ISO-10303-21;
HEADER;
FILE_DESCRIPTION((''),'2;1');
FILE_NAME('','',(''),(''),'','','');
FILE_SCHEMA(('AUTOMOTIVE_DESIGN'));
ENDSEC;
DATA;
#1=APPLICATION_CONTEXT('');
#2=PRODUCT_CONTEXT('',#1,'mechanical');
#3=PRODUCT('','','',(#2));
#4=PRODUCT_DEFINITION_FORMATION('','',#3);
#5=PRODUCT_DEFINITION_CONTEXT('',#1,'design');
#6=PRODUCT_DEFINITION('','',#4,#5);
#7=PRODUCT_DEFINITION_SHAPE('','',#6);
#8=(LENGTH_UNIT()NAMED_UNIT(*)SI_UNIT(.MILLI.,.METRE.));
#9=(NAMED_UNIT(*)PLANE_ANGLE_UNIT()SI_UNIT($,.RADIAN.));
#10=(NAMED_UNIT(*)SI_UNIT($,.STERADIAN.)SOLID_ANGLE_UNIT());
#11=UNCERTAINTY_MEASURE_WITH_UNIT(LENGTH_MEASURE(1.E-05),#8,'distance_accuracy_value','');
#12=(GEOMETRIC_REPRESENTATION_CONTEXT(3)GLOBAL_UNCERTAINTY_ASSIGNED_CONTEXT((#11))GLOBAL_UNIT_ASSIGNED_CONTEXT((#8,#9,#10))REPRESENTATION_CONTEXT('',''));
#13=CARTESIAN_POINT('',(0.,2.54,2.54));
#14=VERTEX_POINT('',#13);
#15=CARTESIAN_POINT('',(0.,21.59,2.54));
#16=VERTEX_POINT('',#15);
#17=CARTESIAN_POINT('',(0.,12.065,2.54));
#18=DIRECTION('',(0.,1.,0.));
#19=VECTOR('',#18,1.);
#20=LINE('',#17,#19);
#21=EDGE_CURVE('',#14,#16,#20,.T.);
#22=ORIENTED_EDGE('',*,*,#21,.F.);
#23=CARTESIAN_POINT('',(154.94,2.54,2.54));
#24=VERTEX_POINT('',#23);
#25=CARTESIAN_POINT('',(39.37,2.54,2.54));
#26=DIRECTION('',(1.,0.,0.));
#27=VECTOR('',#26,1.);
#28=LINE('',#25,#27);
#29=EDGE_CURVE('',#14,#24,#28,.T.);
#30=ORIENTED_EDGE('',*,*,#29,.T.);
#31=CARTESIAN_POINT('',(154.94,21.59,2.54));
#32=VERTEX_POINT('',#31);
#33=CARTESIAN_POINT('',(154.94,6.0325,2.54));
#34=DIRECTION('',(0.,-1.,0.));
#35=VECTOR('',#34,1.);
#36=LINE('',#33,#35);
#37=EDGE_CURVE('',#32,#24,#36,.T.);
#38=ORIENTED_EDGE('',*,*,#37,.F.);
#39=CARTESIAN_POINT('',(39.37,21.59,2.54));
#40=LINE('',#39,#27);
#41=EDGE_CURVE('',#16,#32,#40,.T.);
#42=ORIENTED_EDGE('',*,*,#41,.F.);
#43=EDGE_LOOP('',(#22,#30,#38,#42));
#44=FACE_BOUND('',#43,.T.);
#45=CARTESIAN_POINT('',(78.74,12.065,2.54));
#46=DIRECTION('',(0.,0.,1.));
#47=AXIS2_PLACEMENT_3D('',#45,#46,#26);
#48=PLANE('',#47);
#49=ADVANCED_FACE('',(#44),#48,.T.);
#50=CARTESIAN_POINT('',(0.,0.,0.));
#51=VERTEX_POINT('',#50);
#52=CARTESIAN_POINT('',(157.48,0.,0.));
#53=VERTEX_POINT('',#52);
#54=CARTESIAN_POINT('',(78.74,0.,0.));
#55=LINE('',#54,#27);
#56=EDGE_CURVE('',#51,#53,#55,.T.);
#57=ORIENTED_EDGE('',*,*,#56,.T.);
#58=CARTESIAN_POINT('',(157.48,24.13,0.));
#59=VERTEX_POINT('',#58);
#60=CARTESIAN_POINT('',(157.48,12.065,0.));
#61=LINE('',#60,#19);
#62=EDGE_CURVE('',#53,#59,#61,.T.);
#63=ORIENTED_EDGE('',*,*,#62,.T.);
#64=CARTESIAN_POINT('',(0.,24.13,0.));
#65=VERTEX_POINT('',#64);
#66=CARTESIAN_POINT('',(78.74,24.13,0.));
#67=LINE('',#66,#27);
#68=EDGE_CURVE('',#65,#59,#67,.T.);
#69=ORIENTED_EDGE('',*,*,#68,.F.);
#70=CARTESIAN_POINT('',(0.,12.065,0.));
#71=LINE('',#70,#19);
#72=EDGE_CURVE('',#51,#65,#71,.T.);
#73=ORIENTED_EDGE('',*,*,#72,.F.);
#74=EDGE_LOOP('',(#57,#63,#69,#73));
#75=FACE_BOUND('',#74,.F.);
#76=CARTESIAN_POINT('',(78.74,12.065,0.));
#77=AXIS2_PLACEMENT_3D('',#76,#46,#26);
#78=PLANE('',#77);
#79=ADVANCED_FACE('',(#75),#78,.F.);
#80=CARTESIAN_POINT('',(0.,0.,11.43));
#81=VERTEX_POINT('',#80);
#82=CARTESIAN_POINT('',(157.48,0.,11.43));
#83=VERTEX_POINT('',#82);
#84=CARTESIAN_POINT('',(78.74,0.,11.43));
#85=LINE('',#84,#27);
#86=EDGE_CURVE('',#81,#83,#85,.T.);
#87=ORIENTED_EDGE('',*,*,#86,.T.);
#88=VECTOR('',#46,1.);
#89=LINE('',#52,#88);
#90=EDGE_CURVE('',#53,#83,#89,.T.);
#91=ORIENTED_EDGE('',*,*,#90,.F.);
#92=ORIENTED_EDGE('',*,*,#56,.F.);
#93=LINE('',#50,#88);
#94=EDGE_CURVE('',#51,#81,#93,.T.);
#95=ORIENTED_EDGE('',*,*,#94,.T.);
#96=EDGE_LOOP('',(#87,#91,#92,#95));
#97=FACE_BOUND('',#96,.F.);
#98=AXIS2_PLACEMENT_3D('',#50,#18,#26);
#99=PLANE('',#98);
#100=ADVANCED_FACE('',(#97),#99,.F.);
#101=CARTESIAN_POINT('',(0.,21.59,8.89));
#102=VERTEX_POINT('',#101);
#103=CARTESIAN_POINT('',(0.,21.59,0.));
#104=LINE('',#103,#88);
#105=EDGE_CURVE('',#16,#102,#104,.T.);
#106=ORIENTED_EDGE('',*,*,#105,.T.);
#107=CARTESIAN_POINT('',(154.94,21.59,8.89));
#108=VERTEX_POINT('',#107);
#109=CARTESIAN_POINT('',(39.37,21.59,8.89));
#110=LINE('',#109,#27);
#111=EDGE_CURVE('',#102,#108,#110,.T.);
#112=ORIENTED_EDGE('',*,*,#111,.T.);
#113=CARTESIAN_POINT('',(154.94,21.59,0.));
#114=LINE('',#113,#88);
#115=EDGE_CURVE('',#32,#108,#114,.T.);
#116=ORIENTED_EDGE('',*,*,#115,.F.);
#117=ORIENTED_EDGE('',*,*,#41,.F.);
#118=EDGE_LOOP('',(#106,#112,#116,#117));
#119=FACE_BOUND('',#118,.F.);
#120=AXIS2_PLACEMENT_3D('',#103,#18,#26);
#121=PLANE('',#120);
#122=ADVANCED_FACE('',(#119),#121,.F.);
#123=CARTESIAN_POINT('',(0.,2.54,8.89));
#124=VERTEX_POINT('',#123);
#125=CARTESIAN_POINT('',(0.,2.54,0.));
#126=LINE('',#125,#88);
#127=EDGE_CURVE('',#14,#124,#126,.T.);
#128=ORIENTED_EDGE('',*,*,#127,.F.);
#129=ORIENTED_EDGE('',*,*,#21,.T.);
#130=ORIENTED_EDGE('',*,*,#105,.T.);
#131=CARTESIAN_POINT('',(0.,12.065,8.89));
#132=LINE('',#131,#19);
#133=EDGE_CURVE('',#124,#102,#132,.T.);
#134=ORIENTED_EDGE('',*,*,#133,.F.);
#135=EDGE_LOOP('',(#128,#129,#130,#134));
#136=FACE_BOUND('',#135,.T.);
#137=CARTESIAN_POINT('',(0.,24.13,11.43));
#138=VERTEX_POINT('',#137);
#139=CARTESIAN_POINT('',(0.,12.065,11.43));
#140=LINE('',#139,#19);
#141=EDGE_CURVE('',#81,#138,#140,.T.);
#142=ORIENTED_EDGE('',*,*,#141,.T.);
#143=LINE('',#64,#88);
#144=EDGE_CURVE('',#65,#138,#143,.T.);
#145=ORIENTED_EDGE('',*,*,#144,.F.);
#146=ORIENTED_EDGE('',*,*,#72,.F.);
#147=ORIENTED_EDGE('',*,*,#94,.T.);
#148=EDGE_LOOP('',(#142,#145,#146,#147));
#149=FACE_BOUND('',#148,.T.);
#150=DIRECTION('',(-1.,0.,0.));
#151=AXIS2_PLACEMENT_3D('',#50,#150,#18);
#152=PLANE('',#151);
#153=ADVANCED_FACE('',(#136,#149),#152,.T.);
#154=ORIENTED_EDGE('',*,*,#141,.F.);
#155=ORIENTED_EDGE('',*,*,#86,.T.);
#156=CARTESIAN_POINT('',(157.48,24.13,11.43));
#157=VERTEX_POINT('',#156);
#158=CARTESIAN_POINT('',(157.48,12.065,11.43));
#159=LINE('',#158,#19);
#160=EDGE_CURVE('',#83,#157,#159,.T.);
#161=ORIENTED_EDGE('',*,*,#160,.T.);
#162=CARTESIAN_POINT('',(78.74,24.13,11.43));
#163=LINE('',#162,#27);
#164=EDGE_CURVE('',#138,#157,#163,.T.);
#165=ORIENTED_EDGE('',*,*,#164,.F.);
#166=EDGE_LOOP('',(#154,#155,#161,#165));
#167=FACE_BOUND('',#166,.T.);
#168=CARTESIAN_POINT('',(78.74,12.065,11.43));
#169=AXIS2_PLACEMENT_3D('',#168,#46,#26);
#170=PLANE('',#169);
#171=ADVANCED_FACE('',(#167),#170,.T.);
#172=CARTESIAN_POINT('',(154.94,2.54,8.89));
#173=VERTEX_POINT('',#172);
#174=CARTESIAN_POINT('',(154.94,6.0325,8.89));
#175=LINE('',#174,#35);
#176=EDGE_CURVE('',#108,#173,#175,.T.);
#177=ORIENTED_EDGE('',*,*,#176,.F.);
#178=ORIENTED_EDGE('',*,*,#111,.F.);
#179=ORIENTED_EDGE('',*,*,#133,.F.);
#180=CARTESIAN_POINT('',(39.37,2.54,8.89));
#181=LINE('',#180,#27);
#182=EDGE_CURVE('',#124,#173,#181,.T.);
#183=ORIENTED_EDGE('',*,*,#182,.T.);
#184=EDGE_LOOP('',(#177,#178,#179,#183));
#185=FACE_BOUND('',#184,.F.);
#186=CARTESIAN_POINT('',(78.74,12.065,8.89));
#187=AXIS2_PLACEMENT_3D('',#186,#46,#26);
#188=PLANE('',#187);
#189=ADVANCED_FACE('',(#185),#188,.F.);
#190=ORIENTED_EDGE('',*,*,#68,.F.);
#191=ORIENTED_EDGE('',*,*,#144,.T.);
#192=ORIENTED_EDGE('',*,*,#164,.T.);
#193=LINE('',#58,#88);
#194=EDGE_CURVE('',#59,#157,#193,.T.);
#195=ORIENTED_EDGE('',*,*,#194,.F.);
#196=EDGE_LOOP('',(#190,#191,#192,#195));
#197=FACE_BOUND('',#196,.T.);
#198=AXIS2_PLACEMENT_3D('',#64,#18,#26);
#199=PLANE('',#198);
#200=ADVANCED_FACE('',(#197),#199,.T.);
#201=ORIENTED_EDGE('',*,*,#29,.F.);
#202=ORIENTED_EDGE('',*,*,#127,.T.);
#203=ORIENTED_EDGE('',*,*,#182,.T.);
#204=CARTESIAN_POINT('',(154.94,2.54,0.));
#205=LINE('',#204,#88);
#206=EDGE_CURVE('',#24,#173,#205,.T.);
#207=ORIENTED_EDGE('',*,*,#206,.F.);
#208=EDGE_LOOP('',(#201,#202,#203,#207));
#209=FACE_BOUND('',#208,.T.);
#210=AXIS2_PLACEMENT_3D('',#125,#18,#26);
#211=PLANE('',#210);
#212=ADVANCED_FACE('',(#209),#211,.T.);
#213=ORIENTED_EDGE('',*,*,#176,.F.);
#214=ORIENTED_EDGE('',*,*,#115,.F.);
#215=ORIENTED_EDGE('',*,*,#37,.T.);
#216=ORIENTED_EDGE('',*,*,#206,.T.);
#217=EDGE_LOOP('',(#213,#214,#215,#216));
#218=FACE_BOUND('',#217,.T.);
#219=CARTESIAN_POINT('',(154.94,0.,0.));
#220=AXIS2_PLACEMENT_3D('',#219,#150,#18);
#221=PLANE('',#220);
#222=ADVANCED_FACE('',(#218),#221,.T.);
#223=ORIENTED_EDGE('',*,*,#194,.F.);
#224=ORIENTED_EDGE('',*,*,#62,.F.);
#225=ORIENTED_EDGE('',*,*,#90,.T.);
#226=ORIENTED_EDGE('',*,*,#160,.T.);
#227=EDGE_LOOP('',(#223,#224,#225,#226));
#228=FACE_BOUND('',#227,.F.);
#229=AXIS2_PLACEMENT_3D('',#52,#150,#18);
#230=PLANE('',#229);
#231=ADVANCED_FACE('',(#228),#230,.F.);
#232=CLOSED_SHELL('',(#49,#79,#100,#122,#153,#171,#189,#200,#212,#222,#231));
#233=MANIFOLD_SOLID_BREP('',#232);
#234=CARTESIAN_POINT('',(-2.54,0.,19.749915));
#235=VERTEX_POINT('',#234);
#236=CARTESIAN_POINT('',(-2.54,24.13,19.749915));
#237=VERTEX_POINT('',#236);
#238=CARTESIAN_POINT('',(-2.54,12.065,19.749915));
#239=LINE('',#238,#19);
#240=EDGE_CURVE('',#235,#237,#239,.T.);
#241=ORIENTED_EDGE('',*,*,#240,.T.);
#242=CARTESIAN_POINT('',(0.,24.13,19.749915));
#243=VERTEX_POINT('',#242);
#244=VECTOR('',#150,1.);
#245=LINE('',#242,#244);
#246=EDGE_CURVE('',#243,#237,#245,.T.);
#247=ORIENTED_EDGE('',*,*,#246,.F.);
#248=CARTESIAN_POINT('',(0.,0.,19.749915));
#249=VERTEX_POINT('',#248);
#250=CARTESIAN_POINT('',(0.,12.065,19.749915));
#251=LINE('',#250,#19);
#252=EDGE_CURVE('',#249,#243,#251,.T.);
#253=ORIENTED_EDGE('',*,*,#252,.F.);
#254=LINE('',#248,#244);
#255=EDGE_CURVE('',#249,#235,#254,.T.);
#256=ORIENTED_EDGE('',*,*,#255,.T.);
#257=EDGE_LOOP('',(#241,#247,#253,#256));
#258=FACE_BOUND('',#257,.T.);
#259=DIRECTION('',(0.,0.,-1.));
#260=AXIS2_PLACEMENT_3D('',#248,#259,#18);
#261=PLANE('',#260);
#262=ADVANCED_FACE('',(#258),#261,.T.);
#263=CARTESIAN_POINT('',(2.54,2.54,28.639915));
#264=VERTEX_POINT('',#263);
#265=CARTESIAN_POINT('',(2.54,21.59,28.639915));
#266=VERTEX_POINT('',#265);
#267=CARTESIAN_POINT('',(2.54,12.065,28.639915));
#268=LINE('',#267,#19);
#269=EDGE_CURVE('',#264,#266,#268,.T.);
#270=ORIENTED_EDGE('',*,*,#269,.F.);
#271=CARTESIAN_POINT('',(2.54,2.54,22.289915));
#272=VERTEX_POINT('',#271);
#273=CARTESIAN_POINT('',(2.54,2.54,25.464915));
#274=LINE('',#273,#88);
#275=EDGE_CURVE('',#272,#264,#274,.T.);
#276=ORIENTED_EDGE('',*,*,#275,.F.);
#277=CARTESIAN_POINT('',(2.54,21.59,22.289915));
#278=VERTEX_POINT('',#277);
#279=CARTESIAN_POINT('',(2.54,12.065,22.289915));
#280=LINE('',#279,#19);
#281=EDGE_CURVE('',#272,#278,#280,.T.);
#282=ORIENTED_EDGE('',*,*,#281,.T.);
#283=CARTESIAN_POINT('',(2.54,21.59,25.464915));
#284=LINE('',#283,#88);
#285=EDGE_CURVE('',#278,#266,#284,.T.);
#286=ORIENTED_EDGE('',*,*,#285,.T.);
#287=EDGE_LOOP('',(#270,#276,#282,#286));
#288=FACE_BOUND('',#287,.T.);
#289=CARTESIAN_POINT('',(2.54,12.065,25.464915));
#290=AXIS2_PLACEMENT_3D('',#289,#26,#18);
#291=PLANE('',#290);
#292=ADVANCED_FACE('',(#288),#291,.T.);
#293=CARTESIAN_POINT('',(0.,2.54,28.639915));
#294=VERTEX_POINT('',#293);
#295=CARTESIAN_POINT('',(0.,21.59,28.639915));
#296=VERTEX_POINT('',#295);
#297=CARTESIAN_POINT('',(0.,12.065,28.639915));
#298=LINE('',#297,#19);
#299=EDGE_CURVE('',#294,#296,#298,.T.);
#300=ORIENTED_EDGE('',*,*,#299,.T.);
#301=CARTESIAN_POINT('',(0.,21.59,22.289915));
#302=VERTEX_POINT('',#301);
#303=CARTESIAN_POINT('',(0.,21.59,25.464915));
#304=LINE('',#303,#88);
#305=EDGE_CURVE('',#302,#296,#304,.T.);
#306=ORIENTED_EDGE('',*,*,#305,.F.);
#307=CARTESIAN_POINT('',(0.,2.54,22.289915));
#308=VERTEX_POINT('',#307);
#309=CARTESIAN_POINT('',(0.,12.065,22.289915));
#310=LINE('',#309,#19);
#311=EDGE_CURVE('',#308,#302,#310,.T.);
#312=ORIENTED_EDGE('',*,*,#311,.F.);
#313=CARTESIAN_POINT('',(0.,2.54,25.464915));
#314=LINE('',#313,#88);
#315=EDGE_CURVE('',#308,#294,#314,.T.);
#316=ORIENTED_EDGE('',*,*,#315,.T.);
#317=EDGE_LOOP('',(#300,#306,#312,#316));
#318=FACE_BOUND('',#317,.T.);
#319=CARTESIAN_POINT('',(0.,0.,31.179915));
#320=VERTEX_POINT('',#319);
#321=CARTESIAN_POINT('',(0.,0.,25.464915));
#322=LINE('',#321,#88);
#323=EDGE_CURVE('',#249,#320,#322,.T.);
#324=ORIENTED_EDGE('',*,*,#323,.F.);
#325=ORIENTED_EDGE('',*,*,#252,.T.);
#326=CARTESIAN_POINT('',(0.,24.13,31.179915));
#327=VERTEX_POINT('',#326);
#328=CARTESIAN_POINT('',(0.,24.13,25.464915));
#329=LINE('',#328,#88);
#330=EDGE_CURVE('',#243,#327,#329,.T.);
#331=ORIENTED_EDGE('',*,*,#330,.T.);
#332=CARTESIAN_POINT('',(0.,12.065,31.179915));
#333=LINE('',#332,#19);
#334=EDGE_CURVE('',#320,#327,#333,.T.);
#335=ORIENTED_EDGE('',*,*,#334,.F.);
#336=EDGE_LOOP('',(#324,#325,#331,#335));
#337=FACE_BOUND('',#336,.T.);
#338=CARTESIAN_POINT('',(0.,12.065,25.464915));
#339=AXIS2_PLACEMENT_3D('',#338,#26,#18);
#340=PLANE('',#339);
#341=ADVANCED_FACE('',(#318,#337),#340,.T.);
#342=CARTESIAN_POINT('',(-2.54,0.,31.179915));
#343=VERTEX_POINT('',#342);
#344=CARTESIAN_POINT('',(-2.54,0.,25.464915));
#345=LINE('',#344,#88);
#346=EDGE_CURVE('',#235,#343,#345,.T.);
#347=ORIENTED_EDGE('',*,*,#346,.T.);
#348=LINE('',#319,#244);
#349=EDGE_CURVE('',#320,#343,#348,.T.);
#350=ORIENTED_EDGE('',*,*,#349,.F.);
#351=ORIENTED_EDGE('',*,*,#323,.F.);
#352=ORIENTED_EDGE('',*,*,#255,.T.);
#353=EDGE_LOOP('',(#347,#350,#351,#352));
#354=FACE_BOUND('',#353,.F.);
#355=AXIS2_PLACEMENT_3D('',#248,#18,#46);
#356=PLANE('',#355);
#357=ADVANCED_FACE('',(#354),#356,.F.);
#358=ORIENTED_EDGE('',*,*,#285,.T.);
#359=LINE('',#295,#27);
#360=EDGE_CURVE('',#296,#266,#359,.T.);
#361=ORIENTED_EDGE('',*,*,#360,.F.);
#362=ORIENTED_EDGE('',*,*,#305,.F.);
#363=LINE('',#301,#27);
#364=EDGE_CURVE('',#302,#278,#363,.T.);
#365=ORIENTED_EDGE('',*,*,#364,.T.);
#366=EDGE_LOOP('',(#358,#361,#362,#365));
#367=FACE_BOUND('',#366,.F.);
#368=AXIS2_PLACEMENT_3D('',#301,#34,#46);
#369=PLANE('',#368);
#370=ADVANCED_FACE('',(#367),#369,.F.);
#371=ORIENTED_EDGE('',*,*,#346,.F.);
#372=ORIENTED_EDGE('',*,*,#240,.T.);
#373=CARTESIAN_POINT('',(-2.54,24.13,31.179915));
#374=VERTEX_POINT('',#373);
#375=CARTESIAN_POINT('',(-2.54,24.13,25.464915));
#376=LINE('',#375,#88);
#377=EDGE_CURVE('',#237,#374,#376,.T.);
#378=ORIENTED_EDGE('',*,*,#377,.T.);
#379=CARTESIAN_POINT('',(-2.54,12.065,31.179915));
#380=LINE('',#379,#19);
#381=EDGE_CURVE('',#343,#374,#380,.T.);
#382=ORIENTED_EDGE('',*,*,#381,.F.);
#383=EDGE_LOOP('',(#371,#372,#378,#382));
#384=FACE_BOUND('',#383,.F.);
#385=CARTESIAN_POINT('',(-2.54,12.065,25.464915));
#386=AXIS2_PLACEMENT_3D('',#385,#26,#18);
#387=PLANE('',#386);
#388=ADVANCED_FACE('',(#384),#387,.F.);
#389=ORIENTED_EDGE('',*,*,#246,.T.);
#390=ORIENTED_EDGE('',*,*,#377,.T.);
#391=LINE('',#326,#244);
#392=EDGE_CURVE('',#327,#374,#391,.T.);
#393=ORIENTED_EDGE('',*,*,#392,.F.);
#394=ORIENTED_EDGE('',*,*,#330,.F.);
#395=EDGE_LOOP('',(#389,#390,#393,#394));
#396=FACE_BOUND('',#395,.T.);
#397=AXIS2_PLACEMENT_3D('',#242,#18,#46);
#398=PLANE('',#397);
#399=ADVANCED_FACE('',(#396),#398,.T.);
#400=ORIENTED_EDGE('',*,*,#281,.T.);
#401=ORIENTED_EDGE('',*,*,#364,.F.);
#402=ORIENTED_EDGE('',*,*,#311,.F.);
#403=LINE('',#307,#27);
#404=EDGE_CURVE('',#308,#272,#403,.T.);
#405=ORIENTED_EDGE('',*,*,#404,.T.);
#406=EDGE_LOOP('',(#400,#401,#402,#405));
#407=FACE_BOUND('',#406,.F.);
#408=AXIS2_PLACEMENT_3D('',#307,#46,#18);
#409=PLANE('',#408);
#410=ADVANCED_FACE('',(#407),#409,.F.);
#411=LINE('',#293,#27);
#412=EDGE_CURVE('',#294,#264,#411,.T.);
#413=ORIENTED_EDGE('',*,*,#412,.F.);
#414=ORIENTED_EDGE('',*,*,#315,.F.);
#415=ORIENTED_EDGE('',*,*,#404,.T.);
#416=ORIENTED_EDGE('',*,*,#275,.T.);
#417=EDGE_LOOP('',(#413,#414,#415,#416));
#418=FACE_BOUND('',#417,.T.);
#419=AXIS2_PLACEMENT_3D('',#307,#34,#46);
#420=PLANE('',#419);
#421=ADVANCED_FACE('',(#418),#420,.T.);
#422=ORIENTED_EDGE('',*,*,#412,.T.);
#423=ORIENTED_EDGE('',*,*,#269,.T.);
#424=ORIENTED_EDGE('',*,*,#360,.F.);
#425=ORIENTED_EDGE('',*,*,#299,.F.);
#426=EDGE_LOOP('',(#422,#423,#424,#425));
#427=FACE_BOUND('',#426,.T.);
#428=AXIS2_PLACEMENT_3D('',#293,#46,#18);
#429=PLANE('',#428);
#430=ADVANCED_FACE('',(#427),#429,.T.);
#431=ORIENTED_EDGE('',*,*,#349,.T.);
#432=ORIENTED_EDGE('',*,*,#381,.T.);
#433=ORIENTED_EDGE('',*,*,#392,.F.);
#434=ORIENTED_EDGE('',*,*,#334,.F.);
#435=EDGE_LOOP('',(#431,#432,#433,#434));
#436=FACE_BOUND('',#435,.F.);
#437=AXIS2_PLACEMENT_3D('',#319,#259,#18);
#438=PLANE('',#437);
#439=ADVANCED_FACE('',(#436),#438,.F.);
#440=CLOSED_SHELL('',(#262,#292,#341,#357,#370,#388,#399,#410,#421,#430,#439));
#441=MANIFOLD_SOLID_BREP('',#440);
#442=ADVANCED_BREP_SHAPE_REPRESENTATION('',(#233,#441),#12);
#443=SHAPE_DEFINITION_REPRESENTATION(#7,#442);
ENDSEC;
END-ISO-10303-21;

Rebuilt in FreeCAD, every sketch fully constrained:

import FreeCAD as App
import Part
import Sketcher

V = App.Vector
Q = App.Units.Quantity


def faces_at(feature, points):
    """Names of the faces that lie closest to the given points."""
    faces = feature.Shape.Faces
    near = lambda p: min(range(len(faces)), key=lambda i: faces[i].distToShape(Part.Vertex(*p))[0])
    return sorted({f"Face{near(p) + 1}" for p in points})


def add_polygon(sketch, points):
    """Adds a closed chain of lines whose ends are joined by coincident constraints."""
    first, n = sketch.GeometryCount, len(points)
    for a, b in zip(points, points[1:] + points[:1]):
        sketch.addGeometry(Part.LineSegment(App.Vector(*a, 0), App.Vector(*b, 0)), False)
    for i in range(n):
        sketch.addConstraint(Sketcher.Constraint("Coincident", first + i, 2, first + (i + 1) % n, 1))

doc = App.newDocument("Part")
params = doc.addObject("Spreadsheet::Sheet", "Params")
for row, (alias, value) in enumerate([
    ("sketch1_width", "6.2 in"),
    ("sketch1_height", "0.95 in"),
    ("pad1_length", "0.45 in"),
    ("thickness_wall", "0.1 in"),
    ("sketch2_width", "0.95 in"),
    ("sketch2_height", "0.45 in"),
    ("pad2_length", "0.1 in"),
    ("sketch3_width", "0.75 in"),
    ("sketch3_height", "0.25 in"),
    ("pad3_length", "0.1 in"),
], start=1):
    params.set(f"A{row}", alias)
    params.set(f"B{row}", "=" + value)
    params.setAlias(f"B{row}", alias)

body = doc.addObject("PartDesign::Body", "Body")

sketch1 = body.newObject("Sketcher::SketchObject", "Sketch")
sketch1.AttachmentSupport = (doc.getObject("XY_Plane"), [""])
sketch1.MapMode = "FlatFace"
add_polygon(sketch1, [(0, 24), (0, 0), (157, 0), (157, 24)])
sketch1.addConstraint([
    Sketcher.Constraint("Vertical", 0),
    Sketcher.Constraint("Horizontal", 1),
    Sketcher.Constraint("Vertical", 2),
    Sketcher.Constraint("Horizontal", 3),
    Sketcher.Constraint("Coincident", 0, 2, -1, 1),
    Sketcher.Constraint("DistanceX", 1, 1, 1, 2, Q("6.2 in")),
    Sketcher.Constraint("DistanceY", 0, 2, 0, 1, Q("0.95 in")),
])
sketch1.setExpression("Constraints[9]", "Params.sketch1_width")
sketch1.setExpression("Constraints[10]", "Params.sketch1_height")
pad1 = body.newObject("PartDesign::Pad", "Pad")
pad1.Profile = sketch1
pad1.setExpression("Length", "Params.pad1_length")
doc.recompute()

thickness = body.newObject("PartDesign::Thickness", "Thickness")
thickness.Base = (pad1, faces_at(pad1, [(0, 12.065, 5.715)]))
thickness.setExpression("Value", "Params.thickness_wall")
thickness.Reversed = True
thickness.Join = "Arc"
body2 = doc.addObject("PartDesign::Body", "Body001")

sketch2 = body2.newObject("Sketcher::SketchObject", "Sketch001")
sketch2.AttachmentSupport = (doc.getObject("YZ_Plane001"), [""])
sketch2.MapMode = "FlatFace"
add_polygon(sketch2, [(0, 31), (0, 20), (24, 20), (24, 31)])
sketch2.addConstraint([
    Sketcher.Constraint("Vertical", 0),
    Sketcher.Constraint("Horizontal", 1),
    Sketcher.Constraint("Vertical", 2),
    Sketcher.Constraint("Horizontal", 3),
    Sketcher.Constraint("PointOnObject", 0, 2, -2),
    Sketcher.Constraint("DistanceX", 1, 1, 1, 2, Q("0.95 in")),
    Sketcher.Constraint("DistanceY", 0, 2, 0, 1, Q("0.45 in")),
    Sketcher.Constraint("DistanceY", -1, 1, 0, 2, Q("19.749915 mm")),
])
sketch2.setExpression("Constraints[9]", "Params.sketch2_width")
sketch2.setExpression("Constraints[10]", "Params.sketch2_height")
pad2 = body2.newObject("PartDesign::Pad", "Pad001")
pad2.Profile = sketch2
pad2.setExpression("Length", "Params.pad2_length")
pad2.Reversed = True

sketch3 = body2.newObject("Sketcher::SketchObject", "Sketch002")
sketch3.AttachmentSupport = (doc.getObject("YZ_Plane001"), [""])
sketch3.MapMode = "FlatFace"
add_polygon(sketch3, [(3, 29), (3, 22), (22, 22), (22, 29)])
sketch3.addConstraint([
    Sketcher.Constraint("Vertical", 0),
    Sketcher.Constraint("Horizontal", 1),
    Sketcher.Constraint("Vertical", 2),
    Sketcher.Constraint("Horizontal", 3),
    Sketcher.Constraint("DistanceX", 1, 1, 1, 2, Q("0.75 in")),
    Sketcher.Constraint("DistanceY", 0, 2, 0, 1, Q("0.25 in")),
    Sketcher.Constraint("DistanceX", -1, 1, 0, 2, Q("0.1 in")),
    Sketcher.Constraint("DistanceY", -1, 1, 0, 2, Q("22.289915 mm")),
])
sketch3.setExpression("Constraints[8]", "Params.sketch3_width")
sketch3.setExpression("Constraints[9]", "Params.sketch3_height")
pad3 = body2.newObject("PartDesign::Pad", "Pad002")
pad3.Profile = sketch3
pad3.setExpression("Length", "Params.pad3_length")

doc.recompute()
